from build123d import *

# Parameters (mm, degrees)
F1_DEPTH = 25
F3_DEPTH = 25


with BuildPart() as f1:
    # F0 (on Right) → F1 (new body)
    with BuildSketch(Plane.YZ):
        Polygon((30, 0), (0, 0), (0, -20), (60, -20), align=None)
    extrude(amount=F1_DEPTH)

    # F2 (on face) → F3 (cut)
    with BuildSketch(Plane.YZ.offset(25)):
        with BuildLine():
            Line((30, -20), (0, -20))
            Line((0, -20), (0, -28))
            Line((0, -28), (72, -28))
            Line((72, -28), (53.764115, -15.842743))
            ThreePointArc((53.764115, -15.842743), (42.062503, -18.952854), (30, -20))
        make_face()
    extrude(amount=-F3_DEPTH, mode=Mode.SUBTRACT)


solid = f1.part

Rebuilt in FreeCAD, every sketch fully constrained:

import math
import FreeCAD as App
import Part
import Sketcher
Q = App.Units.Quantity

doc = App.newDocument("Part")
body = doc.addObject("PartDesign::Body", "Body")

sketch1 = body.newObject("Sketcher::SketchObject", "Sketch")
sketch1.AttachmentSupport = (doc.getObject("YZ_Plane"), [""])
sketch1.MapMode = "FlatFace"
sketch1.addGeometry([
    Part.LineSegment(App.Vector(30, 0, 0), App.Vector(0, 0, 0)),
    Part.LineSegment(App.Vector(0, 0, 0), App.Vector(0, -20, 0)),
    Part.LineSegment(App.Vector(0, -20, 0), App.Vector(60, -20, 0)),
    Part.LineSegment(App.Vector(60, -20, 0), App.Vector(30, 0, 0)),
], False)
sketch1.addConstraint([
    Sketcher.Constraint("Coincident", 0, 2, 1, 1),
    Sketcher.Constraint("Coincident", 1, 2, 2, 1),
    Sketcher.Constraint("Coincident", 2, 2, 3, 1),
    Sketcher.Constraint("Coincident", 3, 2, 0, 1),
    Sketcher.Constraint("Horizontal", 0),
    Sketcher.Constraint("Vertical", 1),
    Sketcher.Constraint("Horizontal", 2),
    Sketcher.Constraint("Coincident", 0, 2, -1, 1),
    Sketcher.Constraint("DistanceX", 0, 2, 0, 1, Q("30 mm")),
    Sketcher.Constraint("DistanceX", 2, 1, 2, 2, Q("60 mm")),
    Sketcher.Constraint("DistanceY", 1, 2, 1, 1, Q("20 mm")),
])
pad1 = body.newObject("PartDesign::Pad", "Pad")
pad1.Profile = sketch1
pad1.Length = 25

sketch2 = body.newObject("Sketcher::SketchObject", "Sketch001")
sketch2.AttachmentSupport = (doc.getObject("YZ_Plane"), [""])
sketch2.MapMode = "FlatFace"
sketch2.AttachmentOffset = App.Placement(App.Vector(0, 0, 25), App.Rotation())
sketch2.addGeometry([
    Part.LineSegment(App.Vector(30, -20, 0), App.Vector(0, -20, 0)),
    Part.LineSegment(App.Vector(0, -20, 0), App.Vector(0, -28, 0)),
    Part.LineSegment(App.Vector(0, -28, 0), App.Vector(72, -28, 0)),
    Part.LineSegment(App.Vector(72, -28, 0), App.Vector(54, -16, 0)),
    Part.ArcOfCircle(Part.Circle(App.Vector(30, 50, 0), App.Vector(0, 0, 1), 70), math.radians(-90), math.radians(-70.15)),
], False)
sketch2.addConstraint([
    Sketcher.Constraint("Coincident", 0, 2, 1, 1),
    Sketcher.Constraint("Coincident", 1, 2, 2, 1),
    Sketcher.Constraint("Coincident", 2, 2, 3, 1),
    Sketcher.Constraint("Coincident", 3, 2, 4, 2),
    Sketcher.Constraint("Tangent", 4, 1, 0, 1),
    Sketcher.Constraint("Horizontal", 0),
    Sketcher.Constraint("Vertical", 1),
    Sketcher.Constraint("Horizontal", 2),
    Sketcher.Constraint("PointOnObject", 0, 2, -2),
    Sketcher.Constraint("DistanceX", 0, 2, 0, 1, Q("30 mm")),
    Sketcher.Constraint("DistanceX", 2, 1, 2, 2, Q("72 mm")),
    Sketcher.Constraint("DistanceY", 1, 2, 1, 1, Q("8 mm")),
    Sketcher.Constraint("DistanceY", 0, 2, -1, 1, Q("20 mm")),
    Sketcher.Constraint("Radius", 4, Q("69.999967 mm")),
    Sketcher.Constraint("DistanceX", 4, 3, 3, 2, Q("23.76411 mm")),
])
pocket1 = body.newObject("PartDesign::Pocket", "Pocket")
pocket1.Profile = sketch2
pocket1.Length = 25

doc.recompute()
